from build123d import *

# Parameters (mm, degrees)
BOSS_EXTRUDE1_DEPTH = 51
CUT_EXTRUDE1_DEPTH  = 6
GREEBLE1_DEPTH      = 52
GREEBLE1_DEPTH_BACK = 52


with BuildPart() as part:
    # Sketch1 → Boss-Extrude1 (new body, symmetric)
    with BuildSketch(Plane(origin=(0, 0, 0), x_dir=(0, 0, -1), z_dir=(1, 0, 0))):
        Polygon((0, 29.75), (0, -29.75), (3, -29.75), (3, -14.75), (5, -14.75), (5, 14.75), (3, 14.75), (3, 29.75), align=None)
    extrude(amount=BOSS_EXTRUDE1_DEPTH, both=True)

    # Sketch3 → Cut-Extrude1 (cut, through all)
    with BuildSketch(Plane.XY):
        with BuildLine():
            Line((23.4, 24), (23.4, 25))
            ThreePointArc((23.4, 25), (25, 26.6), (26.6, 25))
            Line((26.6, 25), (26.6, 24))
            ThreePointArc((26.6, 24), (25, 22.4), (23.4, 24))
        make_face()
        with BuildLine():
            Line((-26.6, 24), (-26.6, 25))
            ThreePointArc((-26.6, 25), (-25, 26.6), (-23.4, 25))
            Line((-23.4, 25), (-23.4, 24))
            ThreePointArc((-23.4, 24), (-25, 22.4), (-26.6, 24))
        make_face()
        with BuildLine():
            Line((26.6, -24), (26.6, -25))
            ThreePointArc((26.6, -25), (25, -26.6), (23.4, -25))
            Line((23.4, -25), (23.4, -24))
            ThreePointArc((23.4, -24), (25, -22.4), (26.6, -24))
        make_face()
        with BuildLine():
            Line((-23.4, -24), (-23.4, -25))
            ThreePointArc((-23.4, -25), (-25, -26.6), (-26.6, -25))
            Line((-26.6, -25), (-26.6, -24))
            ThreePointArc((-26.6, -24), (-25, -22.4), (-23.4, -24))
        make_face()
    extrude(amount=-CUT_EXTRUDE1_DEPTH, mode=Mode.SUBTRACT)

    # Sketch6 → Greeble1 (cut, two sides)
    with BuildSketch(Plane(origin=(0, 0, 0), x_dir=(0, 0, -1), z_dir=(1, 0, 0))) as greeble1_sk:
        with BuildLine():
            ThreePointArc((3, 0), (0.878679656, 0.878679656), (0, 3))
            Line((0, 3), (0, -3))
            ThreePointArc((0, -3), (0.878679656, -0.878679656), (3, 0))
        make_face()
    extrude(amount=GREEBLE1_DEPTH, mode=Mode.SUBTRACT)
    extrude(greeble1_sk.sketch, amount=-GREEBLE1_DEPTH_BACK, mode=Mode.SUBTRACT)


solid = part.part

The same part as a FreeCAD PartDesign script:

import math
import FreeCAD as App
import Part
import Sketcher

V = App.Vector


def add_polygon(sketch, points):
    """Adds a closed chain of lines whose ends are joined by coincident constraints."""
    first, n = sketch.GeometryCount, len(points)
    for a, b in zip(points, points[1:] + points[:1]):
        sketch.addGeometry(Part.LineSegment(App.Vector(*a, 0), App.Vector(*b, 0)), False)
    for i in range(n):
        sketch.addConstraint(Sketcher.Constraint("Coincident", first + i, 2, first + (i + 1) % n, 1))

doc = App.newDocument("Part")
body = doc.addObject("PartDesign::Body", "Body")

sketch1 = body.newObject("Sketcher::SketchObject", "Sketch")
sketch1.AttachmentSupport = (doc.getObject("YZ_Plane"), [""])
sketch1.MapMode = "FlatFace"
add_polygon(sketch1, [(29.8, 0), (-29.8, 0), (-29.8, -3), (-14.8, -3), (-14.8, -5), (14.8, -5), (14.8, -3), (29.8, -3)])
sketch1.addConstraint([
    Sketcher.Constraint("Horizontal", 0),
    Sketcher.Constraint("Vertical", 1),
    Sketcher.Constraint("Horizontal", 2),
    Sketcher.Constraint("Vertical", 3),
    Sketcher.Constraint("Horizontal", 4),
    Sketcher.Constraint("Vertical", 5),
    Sketcher.Constraint("Horizontal", 6),
    Sketcher.Constraint("Vertical", 7),
    Sketcher.Constraint("Symmetric", 0, 2, 7, 2, -1, 1),
    Sketcher.Constraint("Symmetric", 2, 2, 5, 2, -2),
    Sketcher.Constraint("DistanceX", 2, 1, 2, 2, 15.0),
    Sketcher.Constraint("DistanceY", 1, 2, 1, 1, 3.0),
    Sketcher.Constraint("DistanceY", 3, 2, 3, 1, 2.0),
    Sketcher.Constraint("DistanceX", 0, 2, 0, 1, 59.5),
])
pad1 = body.newObject("PartDesign::Pad", "Pad")
pad1.Profile = sketch1
pad1.Length = 102
pad1.Midplane = True

sketch2 = body.newObject("Sketcher::SketchObject", "Sketch001")
sketch2.AttachmentSupport = (doc.getObject("XY_Plane"), [""])
sketch2.MapMode = "FlatFace"
sketch2.addGeometry([
    Part.LineSegment(V(23.4, 25, 0), V(23.4, 24, 0)),
    Part.ArcOfCircle(Part.Circle(V(25, 24, 0), V(0, 0, 1), 1.6), math.radians(180), math.radians(360)),
    Part.LineSegment(V(26.6, 24, 0), V(26.6, 25, 0)),
    Part.ArcOfCircle(Part.Circle(V(25, 25, 0), V(0, 0, 1), 1.6), math.radians(0), math.radians(180)),
    Part.LineSegment(V(-26.6, 25, 0), V(-26.6, 24, 0)),
    Part.ArcOfCircle(Part.Circle(V(-25, 24, 0), V(0, 0, 1), 1.6), math.radians(180), math.radians(360)),
    Part.LineSegment(V(-23.4, 24, 0), V(-23.4, 25, 0)),
    Part.ArcOfCircle(Part.Circle(V(-25, 25, 0), V(0, 0, 1), 1.6), math.radians(0), math.radians(180)),
    Part.LineSegment(V(26.6, -25, 0), V(26.6, -24, 0)),
    Part.ArcOfCircle(Part.Circle(V(25, -24, 0), V(0, 0, 1), 1.6), math.radians(0), math.radians(180)),
    Part.LineSegment(V(23.4, -24, 0), V(23.4, -25, 0)),
    Part.ArcOfCircle(Part.Circle(V(25, -25, 0), V(0, 0, 1), 1.6), math.radians(180), math.radians(360)),
    Part.LineSegment(V(-23.4, -25, 0), V(-23.4, -24, 0)),
    Part.ArcOfCircle(Part.Circle(V(-25, -24, 0), V(0, 0, 1), 1.6), math.radians(0), math.radians(180)),
    Part.LineSegment(V(-26.6, -24, 0), V(-26.6, -25, 0)),
    Part.ArcOfCircle(Part.Circle(V(-25, -25, 0), V(0, 0, 1), 1.6), math.radians(180), math.radians(360)),
], False)
sketch2.addConstraint([
    Sketcher.Constraint("Tangent", 0, 2, 1, 1),
    Sketcher.Constraint("Tangent", 1, 2, 2, 1),
    Sketcher.Constraint("Tangent", 2, 2, 3, 1),
    Sketcher.Constraint("Tangent", 3, 2, 0, 1),
    Sketcher.Constraint("Tangent", 4, 2, 5, 1),
    Sketcher.Constraint("Tangent", 5, 2, 6, 1),
    Sketcher.Constraint("Tangent", 6, 2, 7, 1),
    Sketcher.Constraint("Tangent", 7, 2, 4, 1),
    Sketcher.Constraint("Tangent", 8, 2, 9, 1),
    Sketcher.Constraint("Tangent", 9, 2, 10, 1),
    Sketcher.Constraint("Tangent", 10, 2, 11, 1),
    Sketcher.Constraint("Tangent", 11, 2, 8, 1),
    Sketcher.Constraint("Tangent", 12, 2, 13, 1),
    Sketcher.Constraint("Tangent", 13, 2, 14, 1),
    Sketcher.Constraint("Tangent", 14, 2, 15, 1),
    Sketcher.Constraint("Tangent", 15, 2, 12, 1),
    Sketcher.Constraint("Vertical", 0),
    Sketcher.Constraint("Vertical", 2),
    Sketcher.Constraint("Vertical", 4),
    Sketcher.Constraint("Vertical", 6),
    Sketcher.Constraint("Vertical", 8),
    Sketcher.Constraint("Vertical", 10),
    Sketcher.Constraint("Vertical", 12),
    Sketcher.Constraint("Vertical", 14),
    Sketcher.Constraint("Equal", 3, 5),
    Sketcher.Constraint("Equal", 7, 9),
    Sketcher.Constraint("Equal", 11, 13),
    Sketcher.Constraint("Symmetric", 5, 3, 9, 3, -1, 1),
    Sketcher.Constraint("Symmetric", 1, 3, 13, 3, -1, 1),
    Sketcher.Constraint("Symmetric", 1, 3, 5, 3, -2),
    Sketcher.Constraint("Horizontal", 3, 3, 7, 3),
    Sketcher.Constraint("Horizontal", 11, 3, 15, 3),
    Sketcher.Constraint("Equal", 6, 8),
    Sketcher.Constraint("Radius", 1, 1.6),
    Sketcher.Constraint("DistanceY", 0, 2, 0, 1, 1.0),
    Sketcher.Constraint("DistanceX", -1, 1, 1, 3, 25.0),
    Sketcher.Constraint("DistanceY", -1, 1, 1, 3, 24.0),
])
pocket1 = body.newObject("PartDesign::Pocket", "Pocket")
pocket1.Profile = sketch2
pocket1.Type = "ThroughAll"

sketch3 = body.newObject("Sketcher::SketchObject", "Sketch002")
sketch3.AttachmentSupport = (doc.getObject("YZ_Plane"), [""])
sketch3.MapMode = "FlatFace"
sketch3.addGeometry([
    Part.ArcOfCircle(Part.Circle(V(3, -3, 0), V(0, 0, 1), 3), math.radians(90), math.radians(180)),
    Part.LineSegment(V(3, 0, 0), V(-3, 0, 0)),
    Part.ArcOfCircle(Part.Circle(V(-3, -3, 0), V(0, 0, 1), 3), math.radians(0), math.radians(90)),
], False)
sketch3.addConstraint([
    Sketcher.Constraint("Tangent", 0, 1, 1, 1),
    Sketcher.Constraint("Tangent", 1, 2, 2, 2),
    Sketcher.Constraint("Tangent", 2, 1, 0, 2),
    Sketcher.Constraint("Horizontal", 1),
    Sketcher.Constraint("Equal", 0, 2),
    Sketcher.Constraint("Symmetric", 0, 1, 1, 2, -1, 1),
    Sketcher.Constraint("Radius", 0, 3.0),
])
pocket2 = body.newObject("PartDesign::Pocket", "Pocket001")
pocket2.Profile = sketch3
pocket2.Type = "ThroughAll"
pocket2.Midplane = True

doc.recompute()
